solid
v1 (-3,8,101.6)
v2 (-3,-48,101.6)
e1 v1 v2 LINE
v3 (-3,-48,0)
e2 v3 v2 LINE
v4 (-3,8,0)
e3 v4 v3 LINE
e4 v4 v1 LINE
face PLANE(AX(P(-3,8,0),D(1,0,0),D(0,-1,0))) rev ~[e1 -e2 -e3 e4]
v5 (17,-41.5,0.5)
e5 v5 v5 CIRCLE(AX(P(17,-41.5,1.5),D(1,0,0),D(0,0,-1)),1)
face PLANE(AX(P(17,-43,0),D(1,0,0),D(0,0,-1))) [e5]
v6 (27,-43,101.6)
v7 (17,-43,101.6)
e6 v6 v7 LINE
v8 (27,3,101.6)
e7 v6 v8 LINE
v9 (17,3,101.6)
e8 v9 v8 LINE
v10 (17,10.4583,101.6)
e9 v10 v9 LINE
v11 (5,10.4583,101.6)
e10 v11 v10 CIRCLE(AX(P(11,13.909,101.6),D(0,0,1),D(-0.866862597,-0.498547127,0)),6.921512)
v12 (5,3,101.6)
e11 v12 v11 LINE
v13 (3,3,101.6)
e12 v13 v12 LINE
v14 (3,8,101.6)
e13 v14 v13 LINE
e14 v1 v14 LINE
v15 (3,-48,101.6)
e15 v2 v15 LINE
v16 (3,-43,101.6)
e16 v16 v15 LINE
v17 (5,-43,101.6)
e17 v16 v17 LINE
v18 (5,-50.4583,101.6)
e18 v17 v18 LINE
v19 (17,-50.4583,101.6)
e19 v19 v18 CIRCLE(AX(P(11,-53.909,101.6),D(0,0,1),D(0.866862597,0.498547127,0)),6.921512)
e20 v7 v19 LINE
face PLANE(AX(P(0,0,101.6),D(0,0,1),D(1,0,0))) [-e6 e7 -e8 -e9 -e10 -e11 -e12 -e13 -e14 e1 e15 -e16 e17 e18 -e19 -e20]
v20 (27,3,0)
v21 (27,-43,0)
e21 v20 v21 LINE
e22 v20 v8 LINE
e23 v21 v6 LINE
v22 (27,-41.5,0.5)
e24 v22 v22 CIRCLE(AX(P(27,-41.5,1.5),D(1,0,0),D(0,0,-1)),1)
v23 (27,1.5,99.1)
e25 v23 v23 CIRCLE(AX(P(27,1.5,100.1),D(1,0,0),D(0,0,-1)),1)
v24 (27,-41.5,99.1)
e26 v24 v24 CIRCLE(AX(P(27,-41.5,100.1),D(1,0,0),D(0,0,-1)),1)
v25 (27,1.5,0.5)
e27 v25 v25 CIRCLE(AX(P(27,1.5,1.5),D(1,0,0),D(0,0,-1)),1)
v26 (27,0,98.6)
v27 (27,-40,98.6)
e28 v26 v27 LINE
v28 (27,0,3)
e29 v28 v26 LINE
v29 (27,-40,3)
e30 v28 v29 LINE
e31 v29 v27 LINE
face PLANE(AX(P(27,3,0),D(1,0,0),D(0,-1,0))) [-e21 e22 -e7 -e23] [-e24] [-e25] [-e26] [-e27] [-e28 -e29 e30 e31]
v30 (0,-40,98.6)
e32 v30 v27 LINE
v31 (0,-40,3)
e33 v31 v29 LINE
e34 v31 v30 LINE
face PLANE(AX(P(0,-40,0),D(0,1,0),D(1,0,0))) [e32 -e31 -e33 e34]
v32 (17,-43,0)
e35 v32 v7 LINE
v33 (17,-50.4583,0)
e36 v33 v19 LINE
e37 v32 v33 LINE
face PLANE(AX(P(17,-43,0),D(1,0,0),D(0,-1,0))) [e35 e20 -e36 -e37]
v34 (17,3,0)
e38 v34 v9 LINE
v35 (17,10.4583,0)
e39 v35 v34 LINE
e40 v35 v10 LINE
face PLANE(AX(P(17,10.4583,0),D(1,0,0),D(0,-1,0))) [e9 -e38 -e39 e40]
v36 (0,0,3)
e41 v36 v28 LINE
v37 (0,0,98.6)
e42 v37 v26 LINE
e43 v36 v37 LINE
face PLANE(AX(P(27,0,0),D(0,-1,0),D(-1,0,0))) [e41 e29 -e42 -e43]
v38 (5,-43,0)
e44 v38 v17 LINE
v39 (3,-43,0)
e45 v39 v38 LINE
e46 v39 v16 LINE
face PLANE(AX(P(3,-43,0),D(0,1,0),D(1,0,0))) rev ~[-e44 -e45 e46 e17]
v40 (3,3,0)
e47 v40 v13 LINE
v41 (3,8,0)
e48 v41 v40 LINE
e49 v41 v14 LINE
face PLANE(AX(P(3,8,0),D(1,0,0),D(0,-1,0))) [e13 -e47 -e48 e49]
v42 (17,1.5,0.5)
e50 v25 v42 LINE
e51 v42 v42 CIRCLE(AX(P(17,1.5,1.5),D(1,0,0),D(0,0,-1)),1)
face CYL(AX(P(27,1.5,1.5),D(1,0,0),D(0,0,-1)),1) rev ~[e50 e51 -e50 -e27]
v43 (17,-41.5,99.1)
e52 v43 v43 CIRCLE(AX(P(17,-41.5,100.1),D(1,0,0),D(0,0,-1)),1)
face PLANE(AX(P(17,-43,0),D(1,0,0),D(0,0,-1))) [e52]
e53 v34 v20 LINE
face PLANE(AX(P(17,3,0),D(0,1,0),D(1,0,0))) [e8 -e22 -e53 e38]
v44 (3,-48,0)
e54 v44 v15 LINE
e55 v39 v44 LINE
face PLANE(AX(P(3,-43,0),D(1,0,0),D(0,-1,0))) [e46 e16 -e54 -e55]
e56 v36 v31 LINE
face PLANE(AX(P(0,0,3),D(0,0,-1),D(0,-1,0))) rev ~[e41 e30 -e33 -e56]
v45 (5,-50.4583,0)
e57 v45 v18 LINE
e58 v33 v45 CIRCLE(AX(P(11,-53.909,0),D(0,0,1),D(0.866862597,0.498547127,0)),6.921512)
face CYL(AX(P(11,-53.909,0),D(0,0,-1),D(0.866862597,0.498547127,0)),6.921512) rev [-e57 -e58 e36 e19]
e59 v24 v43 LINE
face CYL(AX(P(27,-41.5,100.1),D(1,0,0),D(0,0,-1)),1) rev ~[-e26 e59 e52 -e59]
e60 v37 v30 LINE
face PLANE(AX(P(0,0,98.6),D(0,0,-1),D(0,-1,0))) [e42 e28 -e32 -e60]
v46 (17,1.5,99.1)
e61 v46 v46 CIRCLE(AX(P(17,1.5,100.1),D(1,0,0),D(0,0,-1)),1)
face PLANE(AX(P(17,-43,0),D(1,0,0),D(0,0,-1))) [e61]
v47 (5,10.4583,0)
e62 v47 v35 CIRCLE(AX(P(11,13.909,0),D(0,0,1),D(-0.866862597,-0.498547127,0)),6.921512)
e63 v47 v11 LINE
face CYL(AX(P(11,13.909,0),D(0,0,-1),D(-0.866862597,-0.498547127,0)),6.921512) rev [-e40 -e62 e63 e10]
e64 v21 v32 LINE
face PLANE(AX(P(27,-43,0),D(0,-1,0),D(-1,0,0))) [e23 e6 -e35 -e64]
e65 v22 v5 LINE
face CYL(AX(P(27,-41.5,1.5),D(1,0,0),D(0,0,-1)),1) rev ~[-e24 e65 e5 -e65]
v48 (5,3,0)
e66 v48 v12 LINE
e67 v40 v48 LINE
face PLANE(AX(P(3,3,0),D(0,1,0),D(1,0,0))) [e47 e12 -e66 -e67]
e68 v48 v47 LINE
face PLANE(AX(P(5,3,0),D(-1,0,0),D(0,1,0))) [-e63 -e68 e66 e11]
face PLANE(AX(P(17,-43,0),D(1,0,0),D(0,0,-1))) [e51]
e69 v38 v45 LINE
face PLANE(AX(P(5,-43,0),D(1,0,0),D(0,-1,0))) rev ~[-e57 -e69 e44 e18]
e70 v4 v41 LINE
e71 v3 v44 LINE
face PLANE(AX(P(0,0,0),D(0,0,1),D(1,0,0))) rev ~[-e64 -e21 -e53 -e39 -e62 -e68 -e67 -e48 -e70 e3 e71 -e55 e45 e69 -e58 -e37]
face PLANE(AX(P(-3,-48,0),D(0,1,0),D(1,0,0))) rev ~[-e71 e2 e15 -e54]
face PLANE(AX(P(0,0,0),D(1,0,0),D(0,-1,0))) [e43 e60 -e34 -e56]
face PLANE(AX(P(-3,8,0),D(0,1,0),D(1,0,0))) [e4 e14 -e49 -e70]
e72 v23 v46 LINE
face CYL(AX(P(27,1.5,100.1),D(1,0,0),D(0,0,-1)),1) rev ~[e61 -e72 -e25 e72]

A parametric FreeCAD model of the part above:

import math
import FreeCAD as App
import Part
import Sketcher
from FreeCAD import Vector
Q = App.Units.Quantity

doc = App.newDocument("Part")
body = doc.addObject("PartDesign::Body", "Body")

# Sketch on XY plane
sketch1 = body.newObject("Sketcher::SketchObject", "Sketch")
sketch1.AttachmentSupport = (doc.getObject("XY_Plane"), [""])
sketch1.MapMode = "FlatFace"
sketch1.addGeometry(Part.LineSegment(Vector(3, 8, 0), Vector(-3, 8, 0)), False)
sketch1.addGeometry(Part.LineSegment(Vector(-3, 8, 0), Vector(-3, -48, 0)), False)
sketch1.addGeometry(Part.LineSegment(Vector(-3, -48, 0), Vector(3, -48, 0)), False)
sketch1.addGeometry(Part.LineSegment(Vector(3, -48, 0), Vector(3, -43, 0)), False)
sketch1.addGeometry(Part.LineSegment(Vector(3, -43, 0), Vector(5, -43, 0)), False)
sketch1.addGeometry(Part.LineSegment(Vector(5, -43, 0), Vector(5, -50.5, 0)), False)
sketch1.addGeometry(Part.ArcOfCircle(Part.Circle(Vector(11, -53.9, 0), Vector(0, 0, 1), 6.9), math.radians(30), math.radians(150)), False)
sketch1.addGeometry(Part.LineSegment(Vector(17, -50.5, 0), Vector(17, -43, 0)), False)
sketch1.addGeometry(Part.LineSegment(Vector(17, -43, 0), Vector(27, -43, 0)), False)
sketch1.addGeometry(Part.LineSegment(Vector(27, -43, 0), Vector(27, -40, 0)), False)
sketch1.addGeometry(Part.LineSegment(Vector(27, -40, 0), Vector(0, -40, 0)), False)
sketch1.addGeometry(Part.LineSegment(Vector(0, -40, 0), Vector(0, 0, 0)), False)
sketch1.addGeometry(Part.LineSegment(Vector(0, 0, 0), Vector(27, 0, 0)), False)
sketch1.addGeometry(Part.LineSegment(Vector(27, 0, 0), Vector(27, 3, 0)), False)
sketch1.addGeometry(Part.LineSegment(Vector(27, 3, 0), Vector(17, 3, 0)), False)
sketch1.addGeometry(Part.LineSegment(Vector(17, 3, 0), Vector(17, 10.5, 0)), False)
sketch1.addGeometry(Part.ArcOfCircle(Part.Circle(Vector(11, 13.9, 0), Vector(0, 0, 1), 6.9), math.radians(-150), math.radians(-30)), False)
sketch1.addGeometry(Part.LineSegment(Vector(5, 10.5, 0), Vector(5, 3, 0)), False)
sketch1.addGeometry(Part.LineSegment(Vector(5, 3, 0), Vector(3, 3, 0)), False)
sketch1.addGeometry(Part.LineSegment(Vector(3, 3, 0), Vector(3, 8, 0)), False)
sketch1.addConstraint(Sketcher.Constraint("Coincident", 0, 2, 1, 1))
sketch1.addConstraint(Sketcher.Constraint("Coincident", 1, 2, 2, 1))
sketch1.addConstraint(Sketcher.Constraint("Coincident", 2, 2, 3, 1))
sketch1.addConstraint(Sketcher.Constraint("Coincident", 3, 2, 4, 1))
sketch1.addConstraint(Sketcher.Constraint("Coincident", 4, 2, 5, 1))
sketch1.addConstraint(Sketcher.Constraint("Coincident", 5, 2, 6, 2))
sketch1.addConstraint(Sketcher.Constraint("Coincident", 6, 1, 7, 1))
sketch1.addConstraint(Sketcher.Constraint("Coincident", 7, 2, 8, 1))
sketch1.addConstraint(Sketcher.Constraint("Coincident", 8, 2, 9, 1))
sketch1.addConstraint(Sketcher.Constraint("Coincident", 9, 2, 10, 1))
sketch1.addConstraint(Sketcher.Constraint("Coincident", 10, 2, 11, 1))
sketch1.addConstraint(Sketcher.Constraint("Coincident", 11, 2, 12, 1))
sketch1.addConstraint(Sketcher.Constraint("Coincident", 12, 2, 13, 1))
sketch1.addConstraint(Sketcher.Constraint("Coincident", 13, 2, 14, 1))
sketch1.addConstraint(Sketcher.Constraint("Coincident", 14, 2, 15, 1))
sketch1.addConstraint(Sketcher.Constraint("Coincident", 15, 2, 16, 2))
sketch1.addConstraint(Sketcher.Constraint("Coincident", 16, 1, 17, 1))
sketch1.addConstraint(Sketcher.Constraint("Coincident", 17, 2, 18, 1))
sketch1.addConstraint(Sketcher.Constraint("Coincident", 18, 2, 19, 1))
sketch1.addConstraint(Sketcher.Constraint("Coincident", 19, 2, 0, 1))
sketch1.addConstraint(Sketcher.Constraint("Horizontal", 0))
sketch1.addConstraint(Sketcher.Constraint("Vertical", 1))
sketch1.addConstraint(Sketcher.Constraint("Horizontal", 2))
sketch1.addConstraint(Sketcher.Constraint("Vertical", 3))
sketch1.addConstraint(Sketcher.Constraint("Horizontal", 4))
sketch1.addConstraint(Sketcher.Constraint("Vertical", 5))
sketch1.addConstraint(Sketcher.Constraint("Vertical", 7))
sketch1.addConstraint(Sketcher.Constraint("Horizontal", 8))
sketch1.addConstraint(Sketcher.Constraint("Vertical", 9))
sketch1.addConstraint(Sketcher.Constraint("Horizontal", 10))
sketch1.addConstraint(Sketcher.Constraint("Vertical", 11))
sketch1.addConstraint(Sketcher.Constraint("Horizontal", 12))
sketch1.addConstraint(Sketcher.Constraint("Vertical", 13))
sketch1.addConstraint(Sketcher.Constraint("Horizontal", 14))
sketch1.addConstraint(Sketcher.Constraint("Vertical", 15))
sketch1.addConstraint(Sketcher.Constraint("Vertical", 17))
sketch1.addConstraint(Sketcher.Constraint("Horizontal", 18))
sketch1.addConstraint(Sketcher.Constraint("Vertical", 19))
sketch1.addConstraint(Sketcher.Constraint("Coincident", 11, 2, -1, 1))
sketch1.addConstraint(Sketcher.Constraint("Equal", 6, 16))
sketch1.addConstraint(Sketcher.Constraint("Horizontal", 5, 2, 6, 1))
sketch1.addConstraint(Sketcher.Constraint("Horizontal", 4, 2, 7, 2))
sketch1.addConstraint(Sketcher.Constraint("Horizontal", 15, 2, 16, 1))
sketch1.addConstraint(Sketcher.Constraint("Horizontal", 14, 2, 17, 2))
sketch1.addConstraint(Sketcher.Constraint("Vertical", 6, 3, 16, 3))
sketch1.addConstraint(Sketcher.Constraint("Vertical", 9, 2, 12, 2))
sketch1.addConstraint(Sketcher.Constraint("Vertical", 7, 2, 14, 2))
sketch1.addConstraint(Sketcher.Constraint("Vertical", 3, 2, 18, 2))
sketch1.addConstraint(Sketcher.Constraint("Equal", 9, 13))
sketch1.addConstraint(Sketcher.Constraint("Equal", 7, 15))
sketch1.addConstraint(Sketcher.Constraint("Equal", 3, 19))
sketch1.addConstraint(Sketcher.Constraint("DistanceX", 4, 1, 4, 2, Q("2 mm")))
sketch1.addConstraint(Sketcher.Constraint("DistanceX", 8, 1, 8, 2, Q("10 mm")))
sketch1.addConstraint(Sketcher.Constraint("DistanceX", 10, 2, 10, 1, Q("27 mm")))
sketch1.addConstraint(Sketcher.Constraint("DistanceY", 3, 1, 3, 2, Q("5 mm")))
sketch1.addConstraint(Sketcher.Constraint("DistanceY", 9, 1, 9, 2, Q("3 mm")))
sketch1.addConstraint(Sketcher.Constraint("DistanceY", 11, 1, 11, 2, Q("40 mm")))
sketch1.addConstraint(Sketcher.Constraint("DistanceX", 0, 2, -1, 1, Q("3 mm")))
sketch1.addConstraint(Sketcher.Constraint("DistanceX", -1, 1, 2, 2, Q("3 mm")))
sketch1.addConstraint(Sketcher.Constraint("Radius", 6, Q("6.9215 mm")))
sketch1.addConstraint(Sketcher.Constraint("DistanceY", 6, 3, 16, 3, Q("67.818 mm")))
pad1 = body.newObject("PartDesign::Pad", "Pad")
pad1.Profile = sketch1
pad1.Length = 101.6

# Sketch on YZ plane
sketch2 = body.newObject("Sketcher::SketchObject", "Sketch001")
sketch2.AttachmentSupport = (doc.getObject("YZ_Plane"), [""])
sketch2.MapMode = "FlatFace"
sketch2.addGeometry(Part.LineSegment(Vector(-40, 3, 0), Vector(-40, 0, 0)), False)
sketch2.addGeometry(Part.LineSegment(Vector(-40, 0, 0), Vector(0, 0, 0)), False)
sketch2.addGeometry(Part.LineSegment(Vector(0, 0, 0), Vector(0, 3, 0)), False)
sketch2.addGeometry(Part.LineSegment(Vector(0, 3, 0), Vector(-40, 3, 0)), False)
sketch2.addGeometry(Part.LineSegment(Vector(-40, 101.6, 0), Vector(-40, 98.6, 0)), False)
sketch2.addGeometry(Part.LineSegment(Vector(-40, 98.6, 0), Vector(0, 98.6, 0)), False)
sketch2.addGeometry(Part.LineSegment(Vector(0, 98.6, 0), Vector(0, 101.6, 0)), False)
sketch2.addGeometry(Part.LineSegment(Vector(0, 101.6, 0), Vector(-40, 101.6, 0)), False)
sketch2.addConstraint(Sketcher.Constraint("Coincident", 0, 2, 1, 1))
sketch2.addConstraint(Sketcher.Constraint("Coincident", 1, 2, 2, 1))
sketch2.addConstraint(Sketcher.Constraint("Coincident", 2, 2, 3, 1))
sketch2.addConstraint(Sketcher.Constraint("Coincident", 3, 2, 0, 1))
sketch2.addConstraint(Sketcher.Constraint("Coincident", 4, 2, 5, 1))
sketch2.addConstraint(Sketcher.Constraint("Coincident", 5, 2, 6, 1))
sketch2.addConstraint(Sketcher.Constraint("Coincident", 6, 2, 7, 1))
sketch2.addConstraint(Sketcher.Constraint("Coincident", 7, 2, 4, 1))
sketch2.addConstraint(Sketcher.Constraint("Vertical", 0))
sketch2.addConstraint(Sketcher.Constraint("Horizontal", 1))
sketch2.addConstraint(Sketcher.Constraint("Vertical", 2))
sketch2.addConstraint(Sketcher.Constraint("Horizontal", 3))
sketch2.addConstraint(Sketcher.Constraint("Vertical", 4))
sketch2.addConstraint(Sketcher.Constraint("Horizontal", 5))
sketch2.addConstraint(Sketcher.Constraint("Vertical", 6))
sketch2.addConstraint(Sketcher.Constraint("Horizontal", 7))
sketch2.addConstraint(Sketcher.Constraint("Coincident", 1, 2, -1, 1))
sketch2.addConstraint(Sketcher.Constraint("PointOnObject", 5, 2, -2))
sketch2.addConstraint(Sketcher.Constraint("Vertical", 3, 2, 4, 2))
sketch2.addConstraint(Sketcher.Constraint("Equal", 2, 4))
sketch2.addConstraint(Sketcher.Constraint("DistanceY", 0, 2, 0, 1, Q("3 mm")))
sketch2.addConstraint(Sketcher.Constraint("DistanceX", 1, 1, 1, 2, Q("40 mm")))
sketch2.addConstraint(Sketcher.Constraint("DistanceY", -1, 1, 4, 2, Q("98.6 mm")))
pad2 = body.newObject("PartDesign::Pad", "Pad001")
pad2.Profile = sketch2
pad2.Length = 27

# Sketch on YZ plane
sketch3 = body.newObject("Sketcher::SketchObject", "Sketch002")
sketch3.AttachmentSupport = (doc.getObject("YZ_Plane"), [""])
sketch3.MapMode = "FlatFace"
sketch3.AttachmentOffset = App.Placement(Vector(0, 0, 27), App.Rotation())
sketch3.addGeometry(Part.Circle(Vector(1.5, 100.1, 0), Vector(0, 0, 1), 1), False)
sketch3.addGeometry(Part.Circle(Vector(1.5, 1.5, 0), Vector(0, 0, 1), 1), False)
sketch3.addGeometry(Part.Circle(Vector(-41.5, 1.5, 0), Vector(0, 0, 1), 1), False)
sketch3.addGeometry(Part.Circle(Vector(-41.5, 100.1, 0), Vector(0, 0, 1), 1), False)
sketch3.addConstraint(Sketcher.Constraint("Equal", 0, 1))
sketch3.addConstraint(Sketcher.Constraint("Equal", 1, 2))
sketch3.addConstraint(Sketcher.Constraint("Equal", 2, 3))
sketch3.addConstraint(Sketcher.Constraint("Horizontal", 1, 3, 2, 3))
sketch3.addConstraint(Sketcher.Constraint("Horizontal", 0, 3, 3, 3))
sketch3.addConstraint(Sketcher.Constraint("Vertical", 0, 3, 1, 3))
sketch3.addConstraint(Sketcher.Constraint("Vertical", 2, 3, 3, 3))
sketch3.addConstraint(Sketcher.Constraint("Diameter", 0, Q("2 mm")))
sketch3.addConstraint(Sketcher.Constraint("DistanceX", -1, 1, 0, 3, Q("1.5 mm")))
sketch3.addConstraint(Sketcher.Constraint("DistanceY", -1, 1, 1, 3, Q("1.5 mm")))
sketch3.addConstraint(Sketcher.Constraint("DistanceX", 2, 3, 1, 3, Q("43 mm")))
sketch3.addConstraint(Sketcher.Constraint("DistanceY", -1, 1, 0, 3, Q("100.1 mm")))
pocket1 = body.newObject("PartDesign::Pocket", "Pocket")
pocket1.Profile = sketch3
pocket1.Length = 10

doc.recompute()
